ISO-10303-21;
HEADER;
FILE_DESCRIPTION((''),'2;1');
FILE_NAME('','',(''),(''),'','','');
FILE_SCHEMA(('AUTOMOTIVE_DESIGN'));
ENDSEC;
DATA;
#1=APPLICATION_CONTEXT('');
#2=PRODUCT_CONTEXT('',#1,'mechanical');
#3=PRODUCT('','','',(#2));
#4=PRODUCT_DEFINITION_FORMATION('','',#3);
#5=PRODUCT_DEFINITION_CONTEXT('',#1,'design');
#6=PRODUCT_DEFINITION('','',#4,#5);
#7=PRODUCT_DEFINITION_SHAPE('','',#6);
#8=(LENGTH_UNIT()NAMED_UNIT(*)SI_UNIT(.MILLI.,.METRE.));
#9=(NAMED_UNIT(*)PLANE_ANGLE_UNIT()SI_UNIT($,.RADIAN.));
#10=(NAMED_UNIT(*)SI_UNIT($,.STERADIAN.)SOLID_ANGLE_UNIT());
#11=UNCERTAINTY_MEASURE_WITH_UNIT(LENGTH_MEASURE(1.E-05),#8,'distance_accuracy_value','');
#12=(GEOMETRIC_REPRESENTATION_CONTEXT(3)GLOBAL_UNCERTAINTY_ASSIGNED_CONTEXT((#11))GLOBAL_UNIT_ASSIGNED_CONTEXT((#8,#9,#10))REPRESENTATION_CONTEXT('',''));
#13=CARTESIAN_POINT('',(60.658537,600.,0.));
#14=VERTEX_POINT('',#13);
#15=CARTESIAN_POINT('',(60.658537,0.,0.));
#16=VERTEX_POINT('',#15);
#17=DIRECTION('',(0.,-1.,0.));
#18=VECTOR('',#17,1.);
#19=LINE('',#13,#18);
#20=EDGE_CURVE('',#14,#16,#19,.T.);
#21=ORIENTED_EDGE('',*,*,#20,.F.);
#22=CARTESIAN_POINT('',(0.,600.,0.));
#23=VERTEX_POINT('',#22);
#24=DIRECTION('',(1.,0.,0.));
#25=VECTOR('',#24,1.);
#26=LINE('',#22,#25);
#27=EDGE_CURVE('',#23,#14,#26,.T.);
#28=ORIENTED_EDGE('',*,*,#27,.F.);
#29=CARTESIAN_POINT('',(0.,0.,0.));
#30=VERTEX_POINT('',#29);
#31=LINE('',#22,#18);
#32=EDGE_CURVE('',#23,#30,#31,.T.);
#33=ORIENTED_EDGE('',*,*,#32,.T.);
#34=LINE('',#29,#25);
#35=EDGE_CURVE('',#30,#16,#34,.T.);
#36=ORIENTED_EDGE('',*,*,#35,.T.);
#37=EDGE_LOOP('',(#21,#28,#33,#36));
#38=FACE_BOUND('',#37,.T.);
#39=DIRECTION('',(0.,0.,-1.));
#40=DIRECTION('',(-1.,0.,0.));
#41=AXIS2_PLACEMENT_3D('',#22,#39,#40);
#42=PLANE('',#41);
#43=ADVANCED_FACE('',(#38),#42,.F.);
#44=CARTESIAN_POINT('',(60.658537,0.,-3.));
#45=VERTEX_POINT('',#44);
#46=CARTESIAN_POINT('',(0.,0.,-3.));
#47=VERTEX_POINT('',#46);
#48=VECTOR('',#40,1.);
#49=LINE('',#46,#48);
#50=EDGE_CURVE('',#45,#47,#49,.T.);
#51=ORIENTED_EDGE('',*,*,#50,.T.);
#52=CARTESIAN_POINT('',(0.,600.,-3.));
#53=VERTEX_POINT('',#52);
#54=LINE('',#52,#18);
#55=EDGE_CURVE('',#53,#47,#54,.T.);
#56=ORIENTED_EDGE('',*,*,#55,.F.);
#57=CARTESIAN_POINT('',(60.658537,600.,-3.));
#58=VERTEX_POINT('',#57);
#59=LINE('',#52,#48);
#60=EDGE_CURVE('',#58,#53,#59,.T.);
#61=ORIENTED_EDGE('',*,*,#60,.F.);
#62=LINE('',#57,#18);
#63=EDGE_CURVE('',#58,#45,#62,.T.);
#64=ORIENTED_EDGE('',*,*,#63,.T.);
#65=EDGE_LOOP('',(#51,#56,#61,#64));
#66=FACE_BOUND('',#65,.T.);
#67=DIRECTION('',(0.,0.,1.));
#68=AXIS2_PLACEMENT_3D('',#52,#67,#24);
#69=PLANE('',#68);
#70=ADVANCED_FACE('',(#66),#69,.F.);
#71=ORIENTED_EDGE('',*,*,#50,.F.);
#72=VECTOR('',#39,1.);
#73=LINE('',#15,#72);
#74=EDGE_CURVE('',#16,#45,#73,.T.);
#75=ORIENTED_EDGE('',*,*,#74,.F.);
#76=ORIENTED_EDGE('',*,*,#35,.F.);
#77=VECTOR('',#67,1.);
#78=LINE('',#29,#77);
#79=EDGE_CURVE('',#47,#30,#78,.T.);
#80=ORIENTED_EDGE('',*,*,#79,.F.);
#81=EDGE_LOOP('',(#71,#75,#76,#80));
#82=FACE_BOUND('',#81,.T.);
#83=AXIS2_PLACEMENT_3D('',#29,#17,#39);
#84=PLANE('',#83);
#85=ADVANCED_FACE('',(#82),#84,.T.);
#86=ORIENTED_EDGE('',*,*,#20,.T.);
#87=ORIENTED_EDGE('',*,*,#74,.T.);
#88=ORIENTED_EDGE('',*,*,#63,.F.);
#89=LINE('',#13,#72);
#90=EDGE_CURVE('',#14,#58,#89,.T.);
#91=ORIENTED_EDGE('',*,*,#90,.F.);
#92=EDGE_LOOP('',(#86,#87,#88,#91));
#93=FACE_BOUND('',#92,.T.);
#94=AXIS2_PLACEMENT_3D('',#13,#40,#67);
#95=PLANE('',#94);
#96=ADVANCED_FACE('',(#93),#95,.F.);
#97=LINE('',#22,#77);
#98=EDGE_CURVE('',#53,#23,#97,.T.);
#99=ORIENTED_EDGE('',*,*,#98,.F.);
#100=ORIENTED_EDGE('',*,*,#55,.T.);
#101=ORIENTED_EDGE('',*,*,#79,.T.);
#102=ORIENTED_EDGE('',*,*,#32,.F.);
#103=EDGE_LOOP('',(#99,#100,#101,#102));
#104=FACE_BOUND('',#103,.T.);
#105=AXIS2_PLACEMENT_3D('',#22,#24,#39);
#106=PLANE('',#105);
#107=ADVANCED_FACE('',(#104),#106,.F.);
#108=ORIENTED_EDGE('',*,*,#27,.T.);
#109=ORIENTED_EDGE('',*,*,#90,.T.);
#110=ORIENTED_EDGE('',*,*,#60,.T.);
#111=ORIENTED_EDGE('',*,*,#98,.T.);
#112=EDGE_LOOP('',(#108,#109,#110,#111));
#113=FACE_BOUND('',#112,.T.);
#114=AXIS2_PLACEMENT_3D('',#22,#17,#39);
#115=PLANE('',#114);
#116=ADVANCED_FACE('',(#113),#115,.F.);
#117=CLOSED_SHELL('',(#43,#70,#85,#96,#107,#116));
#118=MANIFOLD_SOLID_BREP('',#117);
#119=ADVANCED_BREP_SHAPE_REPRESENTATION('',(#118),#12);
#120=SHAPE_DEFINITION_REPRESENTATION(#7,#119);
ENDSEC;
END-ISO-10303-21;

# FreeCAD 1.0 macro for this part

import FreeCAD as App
import Part
import Sketcher

V = App.Vector
Q = App.Units.Quantity

doc = App.newDocument("Part")
body = doc.addObject("PartDesign::Body", "Body")

# Sketch on XZ plane
sketch1 = body.newObject("Sketcher::SketchObject", "Sketch")
sketch1.AttachmentSupport = (doc.getObject("XZ_Plane"), [""])
sketch1.MapMode = "FlatFace"
sketch1.addGeometry(Part.LineSegment(V(0, -3, 0), V(0, 0, 0)), False)
sketch1.addGeometry(Part.LineSegment(V(0, 0, 0), V(60.658537, 0, 0)), False)
sketch1.addGeometry(Part.LineSegment(V(60.658537, 0, 0), V(60.658537, -3, 0)), False)
sketch1.addGeometry(Part.LineSegment(V(60.658537, -3, 0), V(0, -3, 0)), False)
sketch1.addConstraint(Sketcher.Constraint("Coincident", 0, 2, 1, 1))
sketch1.addConstraint(Sketcher.Constraint("Coincident", 1, 2, 2, 1))
sketch1.addConstraint(Sketcher.Constraint("Coincident", 2, 2, 3, 1))
sketch1.addConstraint(Sketcher.Constraint("Coincident", 3, 2, 0, 1))
sketch1.addConstraint(Sketcher.Constraint("Vertical", 0))
sketch1.addConstraint(Sketcher.Constraint("Horizontal", 1))
sketch1.addConstraint(Sketcher.Constraint("Vertical", 2))
sketch1.addConstraint(Sketcher.Constraint("Horizontal", 3))
sketch1.addConstraint(Sketcher.Constraint("Coincident", 0, 2, -1, 1))
sketch1.addConstraint(Sketcher.Constraint("DistanceY", 0, 1, 0, 2, Q("3 mm")))
sketch1.addConstraint(Sketcher.Constraint("DistanceX", 1, 1, 1, 2, Q("60.658537 mm")))
pad1 = body.newObject("PartDesign::Pad", "Pad")
pad1.Profile = sketch1
pad1.Length = 600
pad1.Reversed = True

doc.recompute()
